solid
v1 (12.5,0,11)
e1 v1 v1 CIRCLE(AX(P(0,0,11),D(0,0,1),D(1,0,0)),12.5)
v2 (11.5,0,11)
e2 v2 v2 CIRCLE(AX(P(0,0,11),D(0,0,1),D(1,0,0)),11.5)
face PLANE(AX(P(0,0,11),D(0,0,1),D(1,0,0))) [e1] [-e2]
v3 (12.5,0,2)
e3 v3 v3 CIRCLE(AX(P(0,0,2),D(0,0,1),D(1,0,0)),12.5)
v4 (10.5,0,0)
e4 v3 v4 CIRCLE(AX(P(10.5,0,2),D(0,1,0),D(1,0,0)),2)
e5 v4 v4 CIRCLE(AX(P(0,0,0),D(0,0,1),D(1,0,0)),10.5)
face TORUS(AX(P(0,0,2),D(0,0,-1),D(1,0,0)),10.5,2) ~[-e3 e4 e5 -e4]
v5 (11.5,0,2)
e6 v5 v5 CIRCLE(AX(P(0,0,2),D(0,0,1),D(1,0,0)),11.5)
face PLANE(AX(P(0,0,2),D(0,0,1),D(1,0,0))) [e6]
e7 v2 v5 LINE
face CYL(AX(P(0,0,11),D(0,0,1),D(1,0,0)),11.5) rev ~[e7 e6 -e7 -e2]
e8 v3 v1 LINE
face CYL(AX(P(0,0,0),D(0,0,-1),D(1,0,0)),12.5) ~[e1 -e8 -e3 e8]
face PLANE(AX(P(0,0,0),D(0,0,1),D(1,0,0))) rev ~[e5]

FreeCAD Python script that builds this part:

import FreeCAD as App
import Part
import Sketcher
from FreeCAD import Vector
Q = App.Units.Quantity


def edges_at(feature, points):
    """Names of the edges that pass closest to the given points."""
    edges = feature.Shape.Edges
    near = lambda p: min(range(len(edges)), key=lambda i: edges[i].distToShape(Part.Vertex(*p))[0])
    return sorted({f"Edge{near(p) + 1}" for p in points})

doc = App.newDocument("Part")
body = doc.addObject("PartDesign::Body", "Body")

# Sketch on XY plane
sketch1 = body.newObject("Sketcher::SketchObject", "Sketch")
sketch1.AttachmentSupport = (doc.getObject("XY_Plane"), [""])
sketch1.MapMode = "FlatFace"
sketch1.addGeometry(Part.Circle(Vector(0, 0, 0), Vector(0, 0, 1), 12), False)
sketch1.addConstraint([
    Sketcher.Constraint("Coincident", 0, 3, -1, 1),
    Sketcher.Constraint("Diameter", 0, Q("25 mm")),
])
pad1 = body.newObject("PartDesign::Pad", "Pad")
pad1.Profile = sketch1
pad1.Length = 11

# Sketch on XY plane
sketch2 = body.newObject("Sketcher::SketchObject", "Sketch001")
sketch2.AttachmentSupport = (doc.getObject("XY_Plane"), [""])
sketch2.MapMode = "FlatFace"
sketch2.AttachmentOffset = App.Placement(Vector(0, 0, 11), App.Rotation())
sketch2.addGeometry(Part.Circle(Vector(0, 0, 0), Vector(0, 0, 1), 12), False)
sketch2.addConstraint([
    Sketcher.Constraint("Coincident", 0, 3, -1, 1),
    Sketcher.Constraint("Diameter", 0, Q("23 mm")),
])
pocket1 = body.newObject("PartDesign::Pocket", "Pocket")
pocket1.Profile = sketch2
pocket1.Length = 9
doc.recompute()

fillet = body.newObject("PartDesign::Fillet", "Fillet")
fillet.Base = (pocket1, edges_at(pocket1, [(-12.5, 0, 0)]))
fillet.Radius = 2

doc.recompute()
